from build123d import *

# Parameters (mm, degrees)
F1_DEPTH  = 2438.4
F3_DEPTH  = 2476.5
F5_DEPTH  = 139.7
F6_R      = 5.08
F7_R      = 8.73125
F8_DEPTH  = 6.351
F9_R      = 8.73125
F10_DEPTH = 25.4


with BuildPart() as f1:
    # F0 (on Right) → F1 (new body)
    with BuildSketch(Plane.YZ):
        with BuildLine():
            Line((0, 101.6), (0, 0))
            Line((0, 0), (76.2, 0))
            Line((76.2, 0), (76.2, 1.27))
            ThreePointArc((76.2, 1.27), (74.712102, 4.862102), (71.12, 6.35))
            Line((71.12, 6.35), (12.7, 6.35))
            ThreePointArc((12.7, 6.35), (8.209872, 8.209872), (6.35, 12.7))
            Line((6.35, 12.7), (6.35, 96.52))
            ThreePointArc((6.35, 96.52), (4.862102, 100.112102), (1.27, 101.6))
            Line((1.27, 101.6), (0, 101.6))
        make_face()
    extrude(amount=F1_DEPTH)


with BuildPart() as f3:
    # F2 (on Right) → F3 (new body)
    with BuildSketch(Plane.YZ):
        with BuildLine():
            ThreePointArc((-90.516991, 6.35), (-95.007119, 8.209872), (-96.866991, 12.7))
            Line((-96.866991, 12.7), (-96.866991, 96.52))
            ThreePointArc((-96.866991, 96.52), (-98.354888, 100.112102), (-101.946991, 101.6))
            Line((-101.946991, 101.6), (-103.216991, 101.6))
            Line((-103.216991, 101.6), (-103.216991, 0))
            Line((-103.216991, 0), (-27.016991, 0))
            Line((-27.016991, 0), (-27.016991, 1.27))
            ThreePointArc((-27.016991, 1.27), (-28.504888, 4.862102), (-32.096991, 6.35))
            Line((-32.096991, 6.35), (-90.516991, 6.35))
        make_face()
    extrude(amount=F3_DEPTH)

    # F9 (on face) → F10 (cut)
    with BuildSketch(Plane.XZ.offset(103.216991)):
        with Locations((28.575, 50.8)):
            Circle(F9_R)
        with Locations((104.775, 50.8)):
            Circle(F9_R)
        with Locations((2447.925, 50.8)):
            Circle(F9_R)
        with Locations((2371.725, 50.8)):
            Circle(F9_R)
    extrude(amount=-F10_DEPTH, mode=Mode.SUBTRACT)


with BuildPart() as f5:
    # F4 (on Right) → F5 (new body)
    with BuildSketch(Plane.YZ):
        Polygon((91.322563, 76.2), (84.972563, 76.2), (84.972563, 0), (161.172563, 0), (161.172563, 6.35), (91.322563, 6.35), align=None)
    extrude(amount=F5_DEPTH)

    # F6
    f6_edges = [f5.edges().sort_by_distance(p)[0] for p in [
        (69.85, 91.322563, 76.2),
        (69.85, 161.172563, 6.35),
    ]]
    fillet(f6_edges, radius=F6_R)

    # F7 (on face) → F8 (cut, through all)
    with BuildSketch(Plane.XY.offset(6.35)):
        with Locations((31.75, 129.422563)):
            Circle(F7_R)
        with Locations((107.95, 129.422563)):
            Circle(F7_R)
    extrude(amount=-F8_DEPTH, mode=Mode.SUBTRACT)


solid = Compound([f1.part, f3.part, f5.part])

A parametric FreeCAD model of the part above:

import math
import FreeCAD as App
import Part
import Sketcher

V = App.Vector
Q = App.Units.Quantity


def edges_at(feature, points):
    """Names of the edges that pass closest to the given points."""
    edges = feature.Shape.Edges
    near = lambda p: min(range(len(edges)), key=lambda i: edges[i].distToShape(Part.Vertex(*p))[0])
    return sorted({f"Edge{near(p) + 1}" for p in points})

doc = App.newDocument("Part")
body = doc.addObject("PartDesign::Body", "Body")

# Sketch on YZ plane
sketch1 = doc.addObject("Sketcher::SketchObject", "Sketch")
body.addObject(sketch1)
sketch1.AttachmentSupport = (doc.YZ_Plane, [""])
sketch1.MapMode = "FlatFace"
sketch1.addGeometry([
    Part.LineSegment(V(0, 101.6, 0), V(0, 0, 0)),  # 0
    Part.LineSegment(V(0, 0, 0), V(76.2, 0, 0)),  # 1
    Part.LineSegment(V(76.2, 0, 0), V(76.2, 1.3, 0)),  # 2
    Part.ArcOfCircle(Part.Circle(V(71.1, 1.3, 0), V(0, 0, 1), 5.1), math.radians(0), math.radians(90)),  # 3
    Part.LineSegment(V(71.1, 6.3, 0), V(12.7, 6.3, 0)),  # 4
    Part.ArcOfCircle(Part.Circle(V(12.7, 12.7, 0), V(0, 0, 1), 6.4), math.radians(-180), math.radians(-90)),  # 5
    Part.LineSegment(V(6.3, 12.7, 0), V(6.3, 96.5, 0)),  # 6
    Part.ArcOfCircle(Part.Circle(V(1.3, 96.5, 0), V(0, 0, 1), 5.1), math.radians(0), math.radians(90)),  # 7
    Part.LineSegment(V(1.3, 101.6, 0), V(0, 101.6, 0)),  # 8
], False)
sketch1.addConstraint([
    Sketcher.Constraint("Coincident", 0, 2, 1, 1),
    Sketcher.Constraint("Coincident", 1, 2, 2, 1),
    Sketcher.Constraint("Tangent", 2, 2, 3, 1),
    Sketcher.Constraint("Tangent", 3, 2, 4, 1),
    Sketcher.Constraint("Tangent", 4, 2, 5, 2),
    Sketcher.Constraint("Tangent", 5, 1, 6, 1),
    Sketcher.Constraint("Tangent", 6, 2, 7, 1),
    Sketcher.Constraint("Tangent", 7, 2, 8, 1),
    Sketcher.Constraint("Coincident", 8, 2, 0, 1),
    Sketcher.Constraint("Vertical", 0),
    Sketcher.Constraint("Horizontal", 1),
    Sketcher.Constraint("Vertical", 2),
    Sketcher.Constraint("Horizontal", 4),
    Sketcher.Constraint("Vertical", 6),
    Sketcher.Constraint("Horizontal", 8),
    Sketcher.Constraint("Coincident", 0, 2, -1, 1),
    Sketcher.Constraint("Equal", 3, 7),
    Sketcher.Constraint("Equal", 8, 2),
    Sketcher.Constraint("Radius", 3, Q("0.2000001 in")),
    Sketcher.Constraint("DistanceX", 1, 1, 1, 2, Q("3 in")),
    Sketcher.Constraint("DistanceY", 0, 2, 0, 1, Q("4 in")),
    Sketcher.Constraint("Radius", 5, Q("0.25 in")),
    Sketcher.Constraint("DistanceX", 4, 2, 4, 1, Q("2.3 in")),
])
pad1 = doc.addObject("PartDesign::Pad", "Pad")
body.addObject(pad1)
pad1.Profile = sketch1
pad1.Length = Q("96 in")
body2 = doc.addObject("PartDesign::Body", "Body001")

# Sketch on YZ plane
sketch2 = doc.addObject("Sketcher::SketchObject", "Sketch001")
body2.addObject(sketch2)
sketch2.AttachmentSupport = (doc.getObject("YZ_Plane001"), [""])
sketch2.MapMode = "FlatFace"
sketch2.addGeometry([
    Part.ArcOfCircle(Part.Circle(V(-90.5, 12.7, 0), V(0, 0, 1), 6.4), math.radians(-180), math.radians(-90)),  # 0
    Part.LineSegment(V(-96.9, 12.7, 0), V(-96.9, 96.5, 0)),  # 1
    Part.ArcOfCircle(Part.Circle(V(-101.9, 96.5, 0), V(0, 0, 1), 5.1), math.radians(0), math.radians(90)),  # 2
    Part.LineSegment(V(-101.9, 101.6, 0), V(-103.2, 101.6, 0)),  # 3
    Part.LineSegment(V(-103.2, 101.6, 0), V(-103.2, 0, 0)),  # 4
    Part.LineSegment(V(-103.2, 0, 0), V(-27, 0, 0)),  # 5
    Part.LineSegment(V(-27, 0, 0), V(-27, 1.3, 0)),  # 6
    Part.ArcOfCircle(Part.Circle(V(-32.1, 1.3, 0), V(0, 0, 1), 5.1), math.radians(0), math.radians(90)),  # 7
    Part.LineSegment(V(-32.1, 6.3, 0), V(-90.5, 6.3, 0)),  # 8
], False)
sketch2.addConstraint([
    Sketcher.Constraint("Tangent", 0, 1, 1, 1),
    Sketcher.Constraint("Tangent", 1, 2, 2, 1),
    Sketcher.Constraint("Tangent", 2, 2, 3, 1),
    Sketcher.Constraint("Coincident", 3, 2, 4, 1),
    Sketcher.Constraint("Coincident", 4, 2, 5, 1),
    Sketcher.Constraint("Coincident", 5, 2, 6, 1),
    Sketcher.Constraint("Tangent", 6, 2, 7, 1),
    Sketcher.Constraint("Tangent", 7, 2, 8, 1),
    Sketcher.Constraint("Tangent", 8, 2, 0, 2),
    Sketcher.Constraint("Vertical", 1),
    Sketcher.Constraint("Horizontal", 3),
    Sketcher.Constraint("Vertical", 4),
    Sketcher.Constraint("Horizontal", 5),
    Sketcher.Constraint("Vertical", 6),
    Sketcher.Constraint("Horizontal", 8),
    Sketcher.Constraint("Equal", 2, 7),
    Sketcher.Constraint("PointOnObject", 4, 2, -1),
    Sketcher.Constraint("Equal", 3, 6),
    Sketcher.Constraint("Radius", 2, Q("0.2 in")),
    Sketcher.Constraint("DistanceX", 5, 1, 5, 2, Q("3 in")),
    Sketcher.Constraint("DistanceY", 4, 2, 4, 1, Q("4 in")),
    Sketcher.Constraint("Radius", 0, Q("0.25 in")),
    Sketcher.Constraint("DistanceX", 8, 2, 8, 1, Q("2.3 in")),
    Sketcher.Constraint("DistanceX", 0, 3, -1, 1, 90.516991),
])
pad2 = doc.addObject("PartDesign::Pad", "Pad001")
body2.addObject(pad2)
pad2.Profile = sketch2
pad2.Length = Q("97.5 in")

# Sketch on XZ plane
sketch3 = doc.addObject("Sketcher::SketchObject", "Sketch002")
body2.addObject(sketch3)
sketch3.AttachmentSupport = (doc.getObject("XZ_Plane001"), [""])
sketch3.MapMode = "FlatFace"
sketch3.AttachmentOffset = App.Placement(V(0, 0, 103.216991), App.Rotation())
sketch3.addGeometry([
    Part.Circle(V(29, 51, 0), V(0, 0, 1), 9),
    Part.Circle(V(105, 51, 0), V(0, 0, 1), 9),
    Part.Circle(V(2448, 51, 0), V(0, 0, 1), 9),
    Part.Circle(V(2372, 51, 0), V(0, 0, 1), 9),
], False)
sketch3.addConstraint([
    Sketcher.Constraint("Equal", 0, 1),
    Sketcher.Constraint("Equal", 1, 2),
    Sketcher.Constraint("Equal", 2, 3),
    Sketcher.Constraint("Horizontal", 0, 3, 1, 3),
    Sketcher.Constraint("Horizontal", 1, 3, 2, 3),
    Sketcher.Constraint("Horizontal", 2, 3, 3, 3),
    Sketcher.Constraint("Diameter", 0, Q("0.6875 in")),
    Sketcher.Constraint("DistanceY", -1, 1, 0, 3, Q("2 in")),
    Sketcher.Constraint("DistanceX", 0, 3, 1, 3, Q("3 in")),
    Sketcher.Constraint("DistanceX", 3, 3, 2, 3, Q("3 in")),
    Sketcher.Constraint("DistanceX", 1, 3, 2, 3, Q("92.25 in")),
    Sketcher.Constraint("DistanceX", -1, 1, 0, 3, Q("1.125 in")),
])
pocket1 = doc.addObject("PartDesign::Pocket", "Pocket")
body2.addObject(pocket1)
pocket1.Profile = sketch3
pocket1.Length = Q("1 in")
body3 = doc.addObject("PartDesign::Body", "Body002")

# Sketch on YZ plane
sketch4 = doc.addObject("Sketcher::SketchObject", "Sketch003")
body3.addObject(sketch4)
sketch4.AttachmentSupport = (doc.getObject("YZ_Plane002"), [""])
sketch4.MapMode = "FlatFace"
sketch4.addGeometry([
    Part.LineSegment(V(91, 76, 0), V(85, 76, 0)),  # 0
    Part.LineSegment(V(85, 76, 0), V(85, 0, 0)),  # 1
    Part.LineSegment(V(85, 0, 0), V(161, 0, 0)),  # 2
    Part.LineSegment(V(161, 0, 0), V(161, 6, 0)),  # 3
    Part.LineSegment(V(161, 6, 0), V(91, 6, 0)),  # 4
    Part.LineSegment(V(91, 6, 0), V(91, 76, 0)),  # 5
], False)
sketch4.addConstraint([
    Sketcher.Constraint("Coincident", 0, 2, 1, 1),
    Sketcher.Constraint("Coincident", 1, 2, 2, 1),
    Sketcher.Constraint("Coincident", 2, 2, 3, 1),
    Sketcher.Constraint("Coincident", 3, 2, 4, 1),
    Sketcher.Constraint("Coincident", 4, 2, 5, 1),
    Sketcher.Constraint("Coincident", 5, 2, 0, 1),
    Sketcher.Constraint("Horizontal", 0),
    Sketcher.Constraint("Vertical", 1),
    Sketcher.Constraint("Horizontal", 2),
    Sketcher.Constraint("Vertical", 3),
    Sketcher.Constraint("Horizontal", 4),
    Sketcher.Constraint("Vertical", 5),
    Sketcher.Constraint("PointOnObject", 1, 2, -1),
    Sketcher.Constraint("Equal", 2, 1),
    Sketcher.Constraint("Equal", 0, 3),
    Sketcher.Constraint("DistanceX", 2, 1, 2, 2, Q("3 in")),
    Sketcher.Constraint("DistanceX", 0, 2, 0, 1, Q("0.25 in")),
    Sketcher.Constraint("DistanceX", -1, 1, 0, 2, 84.972563),
])
pad3 = doc.addObject("PartDesign::Pad", "Pad002")
body3.addObject(pad3)
pad3.Profile = sketch4
pad3.Length = Q("5.5 in")
doc.recompute()

fillet = doc.addObject("PartDesign::Fillet", "Fillet")
body3.addObject(fillet)
fillet.Base = (pad3, edges_at(pad3, [(69.85, 91.323, 76.2), (69.85, 161.173, 6.35)]))
fillet.Radius = Q("0.2 in")

# Sketch on XY plane
sketch5 = doc.addObject("Sketcher::SketchObject", "Sketch004")
body3.addObject(sketch5)
sketch5.AttachmentSupport = (doc.getObject("XY_Plane002"), [""])
sketch5.MapMode = "FlatFace"
sketch5.AttachmentOffset = App.Placement(V(0, 0, 0.25 * 25.4), App.Rotation())
sketch5.addGeometry([
    Part.Circle(V(32, 129, 0), V(0, 0, 1), 9),
    Part.Circle(V(108, 129, 0), V(0, 0, 1), 9),
], False)
sketch5.addConstraint([
    Sketcher.Constraint("Equal", 0, 1),
    Sketcher.Constraint("Horizontal", 0, 3, 1, 3),
    Sketcher.Constraint("Diameter", 0, Q("0.6875 in")),
    Sketcher.Constraint("DistanceX", 0, 3, 1, 3, Q("3 in")),
    Sketcher.Constraint("DistanceX", -1, 1, 0, 3, Q("1.25 in")),
    Sketcher.Constraint("DistanceY", -1, 1, 0, 3, 129.422563),
])
pocket2 = doc.addObject("PartDesign::Pocket", "Pocket001")
body3.addObject(pocket2)
pocket2.Profile = sketch5
pocket2.Type = "ThroughAll"

doc.recompute()
